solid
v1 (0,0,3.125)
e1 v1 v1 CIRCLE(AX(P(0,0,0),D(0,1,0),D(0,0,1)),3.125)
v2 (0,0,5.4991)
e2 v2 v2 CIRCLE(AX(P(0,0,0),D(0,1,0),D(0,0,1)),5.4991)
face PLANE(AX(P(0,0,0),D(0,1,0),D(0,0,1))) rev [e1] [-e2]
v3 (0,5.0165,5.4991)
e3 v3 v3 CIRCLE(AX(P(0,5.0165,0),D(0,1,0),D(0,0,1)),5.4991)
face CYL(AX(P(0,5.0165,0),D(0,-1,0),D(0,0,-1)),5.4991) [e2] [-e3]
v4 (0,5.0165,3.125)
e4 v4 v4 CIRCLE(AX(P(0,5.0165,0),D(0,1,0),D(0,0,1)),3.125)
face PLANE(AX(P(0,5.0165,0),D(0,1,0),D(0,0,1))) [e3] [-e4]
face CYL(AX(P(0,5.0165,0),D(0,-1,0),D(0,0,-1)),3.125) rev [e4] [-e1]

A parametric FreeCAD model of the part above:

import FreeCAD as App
import Part
import Sketcher

V = App.Vector
Q = App.Units.Quantity

doc = App.newDocument("Part")
body = doc.addObject("PartDesign::Body", "Body")

sketch1 = doc.addObject("Sketcher::SketchObject", "Sketch")
body.addObject(sketch1)
sketch1.AttachmentSupport = (doc.XZ_Plane, [""])
sketch1.MapMode = "FlatFace"
sketch1.addGeometry([
    Part.Circle(V(0, 0, 0), V(0, 0, 1), 5.5),
    Part.Circle(V(0, 0, 0), V(0, 0, 1), 3.1),
], False)
sketch1.addConstraint([
    Sketcher.Constraint("Coincident", 0, 3, -1, 1),
    Sketcher.Constraint("Coincident", 1, 3, -1, 1),
    Sketcher.Constraint("Diameter", 0, Q("0.433 in")),
    Sketcher.Constraint("Diameter", 1, 6.25),
])
pad1 = doc.addObject("PartDesign::Pad", "Pad")
body.addObject(pad1)
pad1.Profile = sketch1
pad1.Length = Q("0.1975 in")
pad1.Reversed = True

doc.recompute()
